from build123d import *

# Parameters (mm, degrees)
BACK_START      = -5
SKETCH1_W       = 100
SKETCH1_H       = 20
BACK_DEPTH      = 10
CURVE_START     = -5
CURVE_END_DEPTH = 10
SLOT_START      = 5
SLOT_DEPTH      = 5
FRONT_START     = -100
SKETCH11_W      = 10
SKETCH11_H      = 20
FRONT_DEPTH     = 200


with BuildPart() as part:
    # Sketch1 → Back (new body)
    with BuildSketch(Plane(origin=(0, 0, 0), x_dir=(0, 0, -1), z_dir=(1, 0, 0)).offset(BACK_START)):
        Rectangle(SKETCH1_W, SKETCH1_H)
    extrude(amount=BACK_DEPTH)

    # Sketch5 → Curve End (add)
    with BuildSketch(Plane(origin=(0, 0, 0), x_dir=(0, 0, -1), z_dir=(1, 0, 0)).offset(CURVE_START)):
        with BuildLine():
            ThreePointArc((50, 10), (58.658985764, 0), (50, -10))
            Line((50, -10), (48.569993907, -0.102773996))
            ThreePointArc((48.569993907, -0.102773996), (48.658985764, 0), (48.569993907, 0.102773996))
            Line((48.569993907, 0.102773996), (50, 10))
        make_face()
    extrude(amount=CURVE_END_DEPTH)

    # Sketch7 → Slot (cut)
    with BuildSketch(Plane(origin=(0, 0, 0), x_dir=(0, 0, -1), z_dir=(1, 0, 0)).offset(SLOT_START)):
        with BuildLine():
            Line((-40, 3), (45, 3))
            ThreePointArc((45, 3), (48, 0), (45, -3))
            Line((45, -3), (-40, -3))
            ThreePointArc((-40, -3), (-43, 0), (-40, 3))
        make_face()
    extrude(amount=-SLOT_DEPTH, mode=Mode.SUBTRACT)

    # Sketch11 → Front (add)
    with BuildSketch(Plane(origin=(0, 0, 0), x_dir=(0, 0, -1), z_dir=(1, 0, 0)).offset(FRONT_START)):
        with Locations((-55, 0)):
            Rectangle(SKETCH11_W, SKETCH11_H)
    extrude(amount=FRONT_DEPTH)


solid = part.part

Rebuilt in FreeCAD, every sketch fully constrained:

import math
import FreeCAD as App
import Part
import Sketcher

V = App.Vector


def add_polygon(sketch, points):
    """Adds a closed chain of lines whose ends are joined by coincident constraints."""
    first, n = sketch.GeometryCount, len(points)
    for a, b in zip(points, points[1:] + points[:1]):
        sketch.addGeometry(Part.LineSegment(App.Vector(*a, 0), App.Vector(*b, 0)), False)
    for i in range(n):
        sketch.addConstraint(Sketcher.Constraint("Coincident", first + i, 2, first + (i + 1) % n, 1))

doc = App.newDocument("Part")
body = doc.addObject("PartDesign::Body", "Body")

# Sketch on YZ plane
sketch1 = body.newObject("Sketcher::SketchObject", "Sketch")
sketch1.AttachmentSupport = (doc.getObject("YZ_Plane"), [""])
sketch1.MapMode = "FlatFace"
sketch1.AttachmentOffset = App.Placement(V(0, 0, -5), App.Rotation())
add_polygon(sketch1, [(10, 50), (-10, 50), (-10, -50), (10, -50)])  # lines 0-3
sketch1.addConstraint([
    Sketcher.Constraint("Horizontal", 0),
    Sketcher.Constraint("Vertical", 1),
    Sketcher.Constraint("Horizontal", 2),
    Sketcher.Constraint("Vertical", 3),
    Sketcher.Constraint("Symmetric", 0, 2, 2, 2, -1, 1),
    Sketcher.Constraint("DistanceX", 0, 2, 0, 1, 20.0),
    Sketcher.Constraint("DistanceY", 1, 2, 1, 1, 100.0),
])
pad1 = body.newObject("PartDesign::Pad", "Pad")
pad1.Profile = sketch1
pad1.Length = 10

# Sketch on YZ plane
sketch2 = body.newObject("Sketcher::SketchObject", "Sketch001")
sketch2.AttachmentSupport = (doc.getObject("YZ_Plane"), [""])
sketch2.MapMode = "FlatFace"
sketch2.AttachmentOffset = App.Placement(V(0, 0, -5), App.Rotation())
sketch2.addGeometry([
    Part.ArcOfCircle(Part.Circle(V(0, -48.555145, 0), V(0, 0, 1), 10.103841), math.radians(-171.778484), math.radians(-8.221516)),
    Part.LineSegment(V(10, -50, 0), V(0.102774, -48.569994, 0)),
    Part.ArcOfCircle(Part.Circle(V(0, -48.555145, 0), V(0, 0, 1), 0.103841), math.radians(-171.778484), math.radians(-8.221516)),
    Part.LineSegment(V(-0.102774, -48.569994, 0), V(-10, -50, 0)),
], False)
sketch2.addConstraint([
    Sketcher.Constraint("Coincident", 0, 2, 1, 1),
    Sketcher.Constraint("Coincident", 1, 2, 2, 2),
    Sketcher.Constraint("Coincident", 2, 1, 3, 1),
    Sketcher.Constraint("Coincident", 3, 2, 0, 1),
    Sketcher.Constraint("Coincident", 2, 3, 0, 3),
    Sketcher.Constraint("Symmetric", 1, 2, 2, 1, -2),
    Sketcher.Constraint("Horizontal", 0, 2, 3, 2),
    Sketcher.Constraint("Distance", 1, 10.0),
    Sketcher.Constraint("DistanceX", -1, 1, 0, 2, 10.0),
    Sketcher.Constraint("DistanceY", 0, 2, -1, 1, 50.0),
    Sketcher.Constraint("Radius", 0, 10.103841),
    Sketcher.Constraint("DistanceY", 1, 2, 0, 3, 0.014849),
])
pad2 = body.newObject("PartDesign::Pad", "Pad001")
pad2.Profile = sketch2
pad2.Length = 10

# Sketch on YZ plane
sketch3 = body.newObject("Sketcher::SketchObject", "Sketch002")
sketch3.AttachmentSupport = (doc.getObject("YZ_Plane"), [""])
sketch3.MapMode = "FlatFace"
sketch3.AttachmentOffset = App.Placement(V(0, 0, 5), App.Rotation())
sketch3.addGeometry([
    Part.LineSegment(V(3, -45, 0), V(3, 40, 0)),
    Part.ArcOfCircle(Part.Circle(V(0, 40, 0), V(0, 0, 1), 3), math.radians(0), math.radians(180)),
    Part.LineSegment(V(-3, 40, 0), V(-3, -45, 0)),
    Part.ArcOfCircle(Part.Circle(V(0, -45, 0), V(0, 0, 1), 3), math.radians(180), math.radians(360)),
], False)
sketch3.addConstraint([
    Sketcher.Constraint("Tangent", 0, 2, 1, 1),
    Sketcher.Constraint("Tangent", 1, 2, 2, 1),
    Sketcher.Constraint("Tangent", 2, 2, 3, 1),
    Sketcher.Constraint("Tangent", 3, 2, 0, 1),
    Sketcher.Constraint("Vertical", 0),
    Sketcher.Constraint("Vertical", 2),
    Sketcher.Constraint("PointOnObject", 1, 3, -2),
    Sketcher.Constraint("Radius", 1, 3.0),
    Sketcher.Constraint("DistanceY", 0, 1, 0, 2, 85.0),
    Sketcher.Constraint("DistanceY", -1, 1, 1, 3, 40.0),
])
pocket1 = body.newObject("PartDesign::Pocket", "Pocket")
pocket1.Profile = sketch3
pocket1.Length = 5

# Sketch on YZ plane
sketch4 = body.newObject("Sketcher::SketchObject", "Sketch003")
sketch4.AttachmentSupport = (doc.getObject("YZ_Plane"), [""])
sketch4.MapMode = "FlatFace"
sketch4.AttachmentOffset = App.Placement(V(0, 0, -100), App.Rotation())
add_polygon(sketch4, [(10, 60), (-10, 60), (-10, 50), (10, 50)])  # lines 0-3
sketch4.addConstraint([
    Sketcher.Constraint("Horizontal", 0),
    Sketcher.Constraint("Vertical", 1),
    Sketcher.Constraint("Horizontal", 2),
    Sketcher.Constraint("Vertical", 3),
    Sketcher.Constraint("DistanceX", 0, 2, 0, 1, 20.0),
    Sketcher.Constraint("DistanceY", 1, 2, 1, 1, 10.0),
    Sketcher.Constraint("DistanceX", 0, 2, -1, 1, 10.0),
    Sketcher.Constraint("DistanceY", -1, 1, 0, 2, 60.0),
])
pad3 = body.newObject("PartDesign::Pad", "Pad002")
pad3.Profile = sketch4
pad3.Length = 200

doc.recompute()
